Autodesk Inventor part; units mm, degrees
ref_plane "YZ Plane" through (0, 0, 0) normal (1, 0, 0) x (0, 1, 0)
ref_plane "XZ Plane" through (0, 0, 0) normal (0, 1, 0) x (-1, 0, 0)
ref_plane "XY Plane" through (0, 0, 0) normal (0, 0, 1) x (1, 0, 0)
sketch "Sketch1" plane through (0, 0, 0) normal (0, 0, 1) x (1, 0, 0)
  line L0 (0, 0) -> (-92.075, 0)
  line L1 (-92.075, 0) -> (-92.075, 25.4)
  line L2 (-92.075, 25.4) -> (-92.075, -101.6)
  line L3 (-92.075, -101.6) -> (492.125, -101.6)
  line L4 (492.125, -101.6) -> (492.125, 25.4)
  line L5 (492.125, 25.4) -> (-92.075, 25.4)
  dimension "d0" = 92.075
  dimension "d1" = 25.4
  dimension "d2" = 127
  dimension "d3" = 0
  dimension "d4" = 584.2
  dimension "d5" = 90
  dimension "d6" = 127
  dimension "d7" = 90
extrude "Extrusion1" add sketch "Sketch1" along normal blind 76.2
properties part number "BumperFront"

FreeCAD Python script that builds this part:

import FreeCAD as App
import Part
import Sketcher
from FreeCAD import Vector
Q = App.Units.Quantity


def add_polygon(sketch, points):
    """Adds a closed chain of lines whose ends are joined by coincident constraints."""
    first, n = sketch.GeometryCount, len(points)
    for a, b in zip(points, points[1:] + points[:1]):
        sketch.addGeometry(Part.LineSegment(App.Vector(*a, 0), App.Vector(*b, 0)), False)
    for i in range(n):
        sketch.addConstraint(Sketcher.Constraint("Coincident", first + i, 2, first + (i + 1) % n, 1))

doc = App.newDocument("Part")
params = doc.addObject("Spreadsheet::Sheet", "Params")
for row, (alias, value) in enumerate([
    ("sketch1_width", "23 in"),
    ("sketch1_height", "5 in"),
    ("pad1_length", "3 in"),
], start=1):
    params.set(f"A{row}", alias)
    params.set(f"B{row}", "=" + value)
    params.setAlias(f"B{row}", alias)

body = doc.addObject("PartDesign::Body", "Body")

# Sketch on XY plane
sketch1 = body.newObject("Sketcher::SketchObject", "Sketch")
sketch1.AttachmentSupport = (doc.getObject("XY_Plane"), [""])
sketch1.MapMode = "FlatFace"
add_polygon(sketch1, [(-92, 25), (-92, -102), (492, -102), (492, 25)])  # lines 0-3
sketch1.addConstraint([
    Sketcher.Constraint("Vertical", 0),
    Sketcher.Constraint("Horizontal", 1),
    Sketcher.Constraint("Vertical", 2),
    Sketcher.Constraint("Horizontal", 3),
    Sketcher.Constraint("DistanceX", 1, 1, 1, 2, Q("23 in")),
    Sketcher.Constraint("DistanceY", 0, 2, 0, 1, Q("5 in")),
    Sketcher.Constraint("DistanceY", -1, 1, 2, 2, Q("1 in")),
    Sketcher.Constraint("DistanceX", 0, 2, -1, 1, Q("3.625 in")),
])
sketch1.setExpression("Constraints[8]", "Params.sketch1_width")
sketch1.setExpression("Constraints[9]", "Params.sketch1_height")
pad1 = body.newObject("PartDesign::Pad", "Pad")
pad1.Profile = sketch1
pad1.setExpression("Length", "Params.pad1_length")

doc.recompute()
